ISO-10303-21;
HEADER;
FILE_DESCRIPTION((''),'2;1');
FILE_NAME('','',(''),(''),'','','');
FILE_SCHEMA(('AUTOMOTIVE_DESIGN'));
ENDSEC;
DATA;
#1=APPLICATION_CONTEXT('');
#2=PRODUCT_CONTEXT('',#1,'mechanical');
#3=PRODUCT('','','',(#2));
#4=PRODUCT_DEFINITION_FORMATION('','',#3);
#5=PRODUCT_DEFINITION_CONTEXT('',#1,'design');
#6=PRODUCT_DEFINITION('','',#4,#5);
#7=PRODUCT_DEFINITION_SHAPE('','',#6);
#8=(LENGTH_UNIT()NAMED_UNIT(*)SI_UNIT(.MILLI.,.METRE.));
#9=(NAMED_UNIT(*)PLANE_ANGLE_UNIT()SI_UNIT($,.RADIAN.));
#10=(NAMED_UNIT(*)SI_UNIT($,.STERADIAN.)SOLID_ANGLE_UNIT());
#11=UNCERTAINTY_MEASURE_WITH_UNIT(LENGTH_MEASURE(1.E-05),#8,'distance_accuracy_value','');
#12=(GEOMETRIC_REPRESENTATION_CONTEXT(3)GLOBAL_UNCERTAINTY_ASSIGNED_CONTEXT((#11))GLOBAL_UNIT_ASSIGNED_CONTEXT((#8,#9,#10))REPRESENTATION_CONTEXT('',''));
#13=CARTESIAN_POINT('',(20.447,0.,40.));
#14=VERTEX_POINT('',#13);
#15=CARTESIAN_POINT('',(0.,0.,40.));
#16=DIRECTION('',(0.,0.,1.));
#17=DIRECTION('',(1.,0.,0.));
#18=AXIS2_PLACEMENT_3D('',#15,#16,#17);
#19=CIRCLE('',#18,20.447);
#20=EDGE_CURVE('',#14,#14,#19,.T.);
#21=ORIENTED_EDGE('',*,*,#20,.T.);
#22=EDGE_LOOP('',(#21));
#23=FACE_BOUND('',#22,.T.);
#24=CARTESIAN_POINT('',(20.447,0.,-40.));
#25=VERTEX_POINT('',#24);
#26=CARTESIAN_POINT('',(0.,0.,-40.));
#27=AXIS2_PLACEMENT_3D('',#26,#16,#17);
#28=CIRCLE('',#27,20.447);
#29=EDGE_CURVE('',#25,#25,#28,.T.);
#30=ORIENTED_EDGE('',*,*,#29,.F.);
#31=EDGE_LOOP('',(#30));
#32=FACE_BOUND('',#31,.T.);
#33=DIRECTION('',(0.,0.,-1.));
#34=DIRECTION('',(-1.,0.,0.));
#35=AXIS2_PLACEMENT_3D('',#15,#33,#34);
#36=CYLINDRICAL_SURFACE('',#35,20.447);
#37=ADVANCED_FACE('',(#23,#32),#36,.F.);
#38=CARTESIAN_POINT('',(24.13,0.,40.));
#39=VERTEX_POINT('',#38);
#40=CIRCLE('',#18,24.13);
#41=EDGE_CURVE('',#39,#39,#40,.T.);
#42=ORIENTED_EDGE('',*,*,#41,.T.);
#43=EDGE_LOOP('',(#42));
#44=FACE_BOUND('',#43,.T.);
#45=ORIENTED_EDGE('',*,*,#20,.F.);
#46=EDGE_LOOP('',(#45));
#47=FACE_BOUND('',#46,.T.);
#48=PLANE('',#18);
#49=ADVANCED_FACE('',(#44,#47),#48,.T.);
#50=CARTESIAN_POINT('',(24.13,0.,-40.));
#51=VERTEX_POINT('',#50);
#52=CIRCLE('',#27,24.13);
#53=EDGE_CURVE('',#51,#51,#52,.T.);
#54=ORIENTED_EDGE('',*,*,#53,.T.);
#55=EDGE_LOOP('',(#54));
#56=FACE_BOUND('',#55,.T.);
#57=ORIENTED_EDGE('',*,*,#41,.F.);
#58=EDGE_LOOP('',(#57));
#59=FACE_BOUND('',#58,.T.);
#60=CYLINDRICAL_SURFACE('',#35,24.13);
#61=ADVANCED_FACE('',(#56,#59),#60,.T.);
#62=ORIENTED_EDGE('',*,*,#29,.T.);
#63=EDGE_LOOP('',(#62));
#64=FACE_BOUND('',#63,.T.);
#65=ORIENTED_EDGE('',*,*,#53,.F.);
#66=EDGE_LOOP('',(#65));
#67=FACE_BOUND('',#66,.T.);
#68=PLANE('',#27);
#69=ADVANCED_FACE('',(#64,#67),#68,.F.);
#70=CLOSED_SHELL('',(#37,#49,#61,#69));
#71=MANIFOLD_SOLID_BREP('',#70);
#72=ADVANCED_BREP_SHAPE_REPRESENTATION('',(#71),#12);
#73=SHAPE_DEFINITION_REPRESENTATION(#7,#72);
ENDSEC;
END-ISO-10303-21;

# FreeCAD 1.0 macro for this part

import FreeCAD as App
import Part
import Sketcher
from FreeCAD import Vector
Q = App.Units.Quantity

doc = App.newDocument("Part")
body = doc.addObject("PartDesign::Body", "Body")

# Sketch on XY plane
sketch1 = doc.addObject("Sketcher::SketchObject", "Sketch")
body.addObject(sketch1)
sketch1.AttachmentSupport = (doc.XY_Plane, [""])
sketch1.MapMode = "FlatFace"
sketch1.addGeometry(Part.Circle(Vector(0, 0, 0), Vector(0, 0, 1), 24), False)
sketch1.addGeometry(Part.Circle(Vector(0, 0, 0), Vector(0, 0, 1), 20), False)
sketch1.addConstraint(Sketcher.Constraint("Coincident", 0, 3, -1, 1))
sketch1.addConstraint(Sketcher.Constraint("Coincident", 1, 3, -1, 1))
sketch1.addConstraint(Sketcher.Constraint("Diameter", 0, Q("1.9 in")))
sketch1.addConstraint(Sketcher.Constraint("Diameter", 1, Q("1.61 in")))
pad1 = doc.addObject("PartDesign::Pad", "Pad")
body.addObject(pad1)
pad1.Profile = sketch1
pad1.Length = 80
pad1.Midplane = True

doc.recompute()
